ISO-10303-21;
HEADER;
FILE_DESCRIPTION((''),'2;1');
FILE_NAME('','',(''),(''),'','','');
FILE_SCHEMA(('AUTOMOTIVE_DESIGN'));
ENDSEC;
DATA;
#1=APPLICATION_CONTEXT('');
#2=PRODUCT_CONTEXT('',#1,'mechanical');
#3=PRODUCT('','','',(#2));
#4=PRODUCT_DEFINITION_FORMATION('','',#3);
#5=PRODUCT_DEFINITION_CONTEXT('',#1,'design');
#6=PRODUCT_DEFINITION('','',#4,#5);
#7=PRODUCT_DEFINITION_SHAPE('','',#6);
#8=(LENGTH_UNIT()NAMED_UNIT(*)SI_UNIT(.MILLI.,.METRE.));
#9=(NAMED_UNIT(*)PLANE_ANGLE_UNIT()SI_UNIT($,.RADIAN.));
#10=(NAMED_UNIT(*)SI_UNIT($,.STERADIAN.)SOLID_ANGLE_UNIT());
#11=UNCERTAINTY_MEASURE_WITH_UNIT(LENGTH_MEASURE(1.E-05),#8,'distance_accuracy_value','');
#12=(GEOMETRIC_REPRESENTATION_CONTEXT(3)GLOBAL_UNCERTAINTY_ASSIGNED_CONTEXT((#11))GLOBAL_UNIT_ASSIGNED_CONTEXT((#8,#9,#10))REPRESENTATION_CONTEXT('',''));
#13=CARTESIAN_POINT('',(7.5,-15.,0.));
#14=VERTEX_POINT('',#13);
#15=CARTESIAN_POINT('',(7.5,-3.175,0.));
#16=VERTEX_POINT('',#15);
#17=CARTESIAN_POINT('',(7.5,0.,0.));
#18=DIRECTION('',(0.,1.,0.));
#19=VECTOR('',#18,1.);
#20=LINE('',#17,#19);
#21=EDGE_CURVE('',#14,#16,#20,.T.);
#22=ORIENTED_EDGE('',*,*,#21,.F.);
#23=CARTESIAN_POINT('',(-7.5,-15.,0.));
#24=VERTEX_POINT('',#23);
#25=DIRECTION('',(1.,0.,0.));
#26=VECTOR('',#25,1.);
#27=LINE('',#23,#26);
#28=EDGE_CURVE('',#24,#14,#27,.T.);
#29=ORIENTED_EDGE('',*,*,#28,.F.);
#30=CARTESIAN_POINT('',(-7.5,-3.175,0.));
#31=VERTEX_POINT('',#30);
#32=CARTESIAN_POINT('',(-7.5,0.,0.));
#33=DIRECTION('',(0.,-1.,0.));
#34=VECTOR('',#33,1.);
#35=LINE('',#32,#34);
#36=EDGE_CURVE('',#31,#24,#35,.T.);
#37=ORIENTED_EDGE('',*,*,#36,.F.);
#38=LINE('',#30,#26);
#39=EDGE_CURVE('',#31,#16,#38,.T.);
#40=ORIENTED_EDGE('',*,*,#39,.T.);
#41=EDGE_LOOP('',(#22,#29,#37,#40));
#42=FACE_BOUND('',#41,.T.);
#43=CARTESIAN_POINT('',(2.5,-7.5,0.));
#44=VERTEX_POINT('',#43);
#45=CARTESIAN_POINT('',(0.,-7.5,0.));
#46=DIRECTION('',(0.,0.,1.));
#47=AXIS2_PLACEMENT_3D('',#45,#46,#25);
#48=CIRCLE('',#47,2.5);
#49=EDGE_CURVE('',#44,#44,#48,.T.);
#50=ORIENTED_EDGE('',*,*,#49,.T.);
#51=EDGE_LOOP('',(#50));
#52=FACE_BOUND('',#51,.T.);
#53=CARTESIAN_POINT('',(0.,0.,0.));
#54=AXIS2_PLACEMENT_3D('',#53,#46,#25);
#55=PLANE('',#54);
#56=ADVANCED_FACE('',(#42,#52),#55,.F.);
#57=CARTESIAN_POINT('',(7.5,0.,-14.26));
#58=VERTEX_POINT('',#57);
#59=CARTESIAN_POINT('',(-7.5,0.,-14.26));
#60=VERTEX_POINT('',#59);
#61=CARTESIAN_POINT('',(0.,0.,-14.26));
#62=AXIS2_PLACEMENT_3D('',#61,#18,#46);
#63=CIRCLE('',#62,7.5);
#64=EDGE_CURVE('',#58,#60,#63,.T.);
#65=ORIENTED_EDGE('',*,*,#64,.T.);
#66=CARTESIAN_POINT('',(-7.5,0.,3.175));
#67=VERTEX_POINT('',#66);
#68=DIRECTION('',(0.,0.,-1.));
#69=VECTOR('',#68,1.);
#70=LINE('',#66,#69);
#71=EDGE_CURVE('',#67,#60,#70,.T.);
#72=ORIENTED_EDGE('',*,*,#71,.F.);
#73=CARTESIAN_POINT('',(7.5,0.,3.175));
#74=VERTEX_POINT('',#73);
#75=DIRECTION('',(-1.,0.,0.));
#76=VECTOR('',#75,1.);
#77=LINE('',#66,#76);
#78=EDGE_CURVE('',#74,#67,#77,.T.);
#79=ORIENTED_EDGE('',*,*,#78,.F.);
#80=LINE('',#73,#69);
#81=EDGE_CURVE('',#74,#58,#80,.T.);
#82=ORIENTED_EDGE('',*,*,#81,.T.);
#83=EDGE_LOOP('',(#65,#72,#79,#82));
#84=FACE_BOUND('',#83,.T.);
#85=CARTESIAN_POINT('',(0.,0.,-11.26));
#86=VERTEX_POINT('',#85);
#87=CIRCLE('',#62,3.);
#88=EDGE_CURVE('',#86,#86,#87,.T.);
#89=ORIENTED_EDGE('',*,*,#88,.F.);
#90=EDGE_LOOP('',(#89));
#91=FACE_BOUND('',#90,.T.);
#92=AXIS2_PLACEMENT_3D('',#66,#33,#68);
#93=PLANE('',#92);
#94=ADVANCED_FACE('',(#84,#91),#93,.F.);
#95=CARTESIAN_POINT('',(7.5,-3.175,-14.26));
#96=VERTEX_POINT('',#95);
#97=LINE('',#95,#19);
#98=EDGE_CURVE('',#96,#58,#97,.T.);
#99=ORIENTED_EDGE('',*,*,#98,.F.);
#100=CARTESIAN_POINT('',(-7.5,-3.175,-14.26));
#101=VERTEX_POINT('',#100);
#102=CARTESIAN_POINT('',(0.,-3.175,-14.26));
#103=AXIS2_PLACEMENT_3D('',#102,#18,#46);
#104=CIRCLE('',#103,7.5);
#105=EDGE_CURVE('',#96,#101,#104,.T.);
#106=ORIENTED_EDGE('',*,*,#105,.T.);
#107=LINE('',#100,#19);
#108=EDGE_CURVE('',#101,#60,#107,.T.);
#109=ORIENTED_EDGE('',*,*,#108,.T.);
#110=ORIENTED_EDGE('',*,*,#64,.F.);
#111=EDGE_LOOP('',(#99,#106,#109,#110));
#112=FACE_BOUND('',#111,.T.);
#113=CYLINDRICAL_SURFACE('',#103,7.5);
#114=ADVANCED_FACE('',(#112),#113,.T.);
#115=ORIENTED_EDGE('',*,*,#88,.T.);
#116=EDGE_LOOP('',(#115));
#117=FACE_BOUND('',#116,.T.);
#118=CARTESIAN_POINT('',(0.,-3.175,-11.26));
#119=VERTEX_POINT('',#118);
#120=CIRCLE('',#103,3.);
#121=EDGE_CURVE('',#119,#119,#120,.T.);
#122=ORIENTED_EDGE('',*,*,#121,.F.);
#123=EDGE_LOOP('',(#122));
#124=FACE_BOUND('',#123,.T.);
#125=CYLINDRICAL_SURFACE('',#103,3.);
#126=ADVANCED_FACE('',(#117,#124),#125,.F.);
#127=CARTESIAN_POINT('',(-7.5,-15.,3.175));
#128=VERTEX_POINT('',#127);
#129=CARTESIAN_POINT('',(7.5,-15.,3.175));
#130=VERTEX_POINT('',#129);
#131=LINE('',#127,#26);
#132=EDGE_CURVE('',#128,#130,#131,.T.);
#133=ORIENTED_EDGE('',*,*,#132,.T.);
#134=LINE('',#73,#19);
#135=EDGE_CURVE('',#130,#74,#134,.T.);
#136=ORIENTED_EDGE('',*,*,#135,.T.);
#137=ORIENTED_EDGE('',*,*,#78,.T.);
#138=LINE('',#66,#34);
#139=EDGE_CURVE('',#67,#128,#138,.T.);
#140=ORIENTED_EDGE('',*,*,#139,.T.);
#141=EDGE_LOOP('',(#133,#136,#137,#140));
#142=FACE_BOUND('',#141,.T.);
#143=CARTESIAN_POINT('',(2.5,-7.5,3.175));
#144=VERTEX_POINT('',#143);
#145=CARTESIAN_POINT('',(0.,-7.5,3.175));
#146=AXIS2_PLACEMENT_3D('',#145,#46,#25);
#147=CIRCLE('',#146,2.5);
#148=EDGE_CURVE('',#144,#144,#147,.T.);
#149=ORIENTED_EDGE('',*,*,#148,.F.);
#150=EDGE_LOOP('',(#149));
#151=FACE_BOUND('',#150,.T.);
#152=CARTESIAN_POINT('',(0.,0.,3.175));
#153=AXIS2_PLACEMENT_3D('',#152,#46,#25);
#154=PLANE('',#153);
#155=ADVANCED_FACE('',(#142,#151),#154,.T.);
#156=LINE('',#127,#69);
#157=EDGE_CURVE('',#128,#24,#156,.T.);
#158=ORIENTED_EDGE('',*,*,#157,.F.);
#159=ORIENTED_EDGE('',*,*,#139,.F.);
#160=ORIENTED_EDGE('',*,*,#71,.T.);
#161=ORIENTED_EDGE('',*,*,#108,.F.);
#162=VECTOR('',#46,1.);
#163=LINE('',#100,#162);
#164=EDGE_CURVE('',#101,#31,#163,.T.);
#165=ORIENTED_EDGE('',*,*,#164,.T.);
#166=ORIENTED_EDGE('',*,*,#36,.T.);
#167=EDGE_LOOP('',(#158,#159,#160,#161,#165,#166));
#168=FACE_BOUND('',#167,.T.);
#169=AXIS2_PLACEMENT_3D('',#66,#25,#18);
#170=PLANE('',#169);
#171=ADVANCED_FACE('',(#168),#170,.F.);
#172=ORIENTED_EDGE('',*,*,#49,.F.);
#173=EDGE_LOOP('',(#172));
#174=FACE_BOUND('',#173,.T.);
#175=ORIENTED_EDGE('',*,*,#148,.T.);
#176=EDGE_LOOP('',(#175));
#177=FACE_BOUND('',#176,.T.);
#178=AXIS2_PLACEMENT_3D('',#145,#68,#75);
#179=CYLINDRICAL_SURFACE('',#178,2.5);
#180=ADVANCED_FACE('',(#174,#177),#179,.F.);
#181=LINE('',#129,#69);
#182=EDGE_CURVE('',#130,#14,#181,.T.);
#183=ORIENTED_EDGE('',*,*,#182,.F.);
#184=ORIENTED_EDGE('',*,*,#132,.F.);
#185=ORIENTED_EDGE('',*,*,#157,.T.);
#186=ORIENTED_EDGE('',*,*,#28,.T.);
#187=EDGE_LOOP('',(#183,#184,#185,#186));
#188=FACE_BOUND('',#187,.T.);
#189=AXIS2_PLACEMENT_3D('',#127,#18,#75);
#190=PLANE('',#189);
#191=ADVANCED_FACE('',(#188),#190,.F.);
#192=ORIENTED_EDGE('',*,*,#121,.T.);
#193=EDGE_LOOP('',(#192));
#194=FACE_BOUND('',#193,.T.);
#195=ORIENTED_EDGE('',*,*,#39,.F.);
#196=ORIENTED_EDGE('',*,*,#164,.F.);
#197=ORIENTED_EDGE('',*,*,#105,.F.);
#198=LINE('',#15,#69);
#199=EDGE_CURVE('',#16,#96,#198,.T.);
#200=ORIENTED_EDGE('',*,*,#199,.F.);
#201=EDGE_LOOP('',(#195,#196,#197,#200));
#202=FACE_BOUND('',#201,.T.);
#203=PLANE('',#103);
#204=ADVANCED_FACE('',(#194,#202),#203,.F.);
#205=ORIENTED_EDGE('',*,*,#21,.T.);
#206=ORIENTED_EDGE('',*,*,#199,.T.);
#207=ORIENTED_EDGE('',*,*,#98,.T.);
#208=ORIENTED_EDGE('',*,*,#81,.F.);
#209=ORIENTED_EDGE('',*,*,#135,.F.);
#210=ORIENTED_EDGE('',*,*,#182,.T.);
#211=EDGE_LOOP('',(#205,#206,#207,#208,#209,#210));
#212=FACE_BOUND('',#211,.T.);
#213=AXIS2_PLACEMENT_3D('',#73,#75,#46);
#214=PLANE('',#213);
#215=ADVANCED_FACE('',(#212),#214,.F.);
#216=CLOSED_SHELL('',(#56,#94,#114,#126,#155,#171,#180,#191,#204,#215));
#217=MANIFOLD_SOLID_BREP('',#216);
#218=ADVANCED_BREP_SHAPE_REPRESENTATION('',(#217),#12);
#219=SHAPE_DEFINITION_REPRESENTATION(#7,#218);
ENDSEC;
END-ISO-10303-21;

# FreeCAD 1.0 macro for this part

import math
import FreeCAD as App
import Part
import Sketcher
Q = App.Units.Quantity


def add_polygon(sketch, points):
    """Adds a closed chain of lines whose ends are joined by coincident constraints."""
    first, n = sketch.GeometryCount, len(points)
    for a, b in zip(points, points[1:] + points[:1]):
        sketch.addGeometry(Part.LineSegment(App.Vector(*a, 0), App.Vector(*b, 0)), False)
    for i in range(n):
        sketch.addConstraint(Sketcher.Constraint("Coincident", first + i, 2, first + (i + 1) % n, 1))

doc = App.newDocument("Part")
body = doc.addObject("PartDesign::Body", "Body")

# Sketch on XY plane
sketch1 = body.newObject("Sketcher::SketchObject", "Sketch")
sketch1.AttachmentSupport = (doc.getObject("XY_Plane"), [""])
sketch1.MapMode = "FlatFace"
add_polygon(sketch1, [(-7.5, 0), (-7.5, -15), (7.5, -15), (7.5, 0)])  # lines 0-3
sketch1.addGeometry(Part.Circle(App.Vector(0, -7.5, 0), App.Vector(0, 0, 1), 2.5), False)  # 4
sketch1.addConstraint(Sketcher.Constraint("Vertical", 0))
sketch1.addConstraint(Sketcher.Constraint("Horizontal", 1))
sketch1.addConstraint(Sketcher.Constraint("Vertical", 2))
sketch1.addConstraint(Sketcher.Constraint("Horizontal", 3))
sketch1.addConstraint(Sketcher.Constraint("Symmetric", 2, 2, 3, 2, -1, 1))
sketch1.addConstraint(Sketcher.Constraint("PointOnObject", 4, 3, -2))
sketch1.addConstraint(Sketcher.Constraint("Equal", 3, 0))
sketch1.addConstraint(Sketcher.Constraint("Diameter", 4, Q("5 mm")))
sketch1.addConstraint(Sketcher.Constraint("DistanceX", 1, 1, 1, 2, Q("15 mm")))
sketch1.addConstraint(Sketcher.Constraint("DistanceY", 4, 3, -1, 1, Q("7.5 mm")))
pad1 = body.newObject("PartDesign::Pad", "Pad")
pad1.Profile = sketch1
pad1.Length = 3.175

# Sketch on XZ plane
sketch2 = body.newObject("Sketcher::SketchObject", "Sketch001")
sketch2.AttachmentSupport = (doc.getObject("XZ_Plane"), [""])
sketch2.MapMode = "FlatFace"
sketch2.addGeometry(Part.LineSegment(App.Vector(-7.5, -14.26, 0), App.Vector(-7.5, 0, 0)), False)
sketch2.addGeometry(Part.LineSegment(App.Vector(-7.5, 0, 0), App.Vector(7.5, 0, 0)), False)
sketch2.addGeometry(Part.LineSegment(App.Vector(7.5, 0, 0), App.Vector(7.5, -14.26, 0)), False)
sketch2.addGeometry(Part.ArcOfCircle(Part.Circle(App.Vector(0, -14.26, 0), App.Vector(0, 0, 1), 7.5), math.radians(180), math.radians(360)), False)
sketch2.addGeometry(Part.Circle(App.Vector(0, -14.26, 0), App.Vector(0, 0, 1), 3), False)
sketch2.addConstraint(Sketcher.Constraint("Coincident", 0, 2, 1, 1))
sketch2.addConstraint(Sketcher.Constraint("Coincident", 1, 2, 2, 1))
sketch2.addConstraint(Sketcher.Constraint("Tangent", 2, 2, 3, 2))
sketch2.addConstraint(Sketcher.Constraint("Tangent", 3, 1, 0, 1))
sketch2.addConstraint(Sketcher.Constraint("Vertical", 0))
sketch2.addConstraint(Sketcher.Constraint("Horizontal", 1))
sketch2.addConstraint(Sketcher.Constraint("Vertical", 2))
sketch2.addConstraint(Sketcher.Constraint("Coincident", 4, 3, 3, 3))
sketch2.addConstraint(Sketcher.Constraint("Symmetric", 0, 2, 1, 2, -1, 1))
sketch2.addConstraint(Sketcher.Constraint("Diameter", 4, Q("6 mm")))
sketch2.addConstraint(Sketcher.Constraint("Radius", 3, Q("7.5 mm")))
sketch2.addConstraint(Sketcher.Constraint("DistanceY", 0, 1, 0, 2, Q("14.26 mm")))
pad2 = body.newObject("PartDesign::Pad", "Pad001")
pad2.Profile = sketch2
pad2.Length = 3.175

doc.recompute()
